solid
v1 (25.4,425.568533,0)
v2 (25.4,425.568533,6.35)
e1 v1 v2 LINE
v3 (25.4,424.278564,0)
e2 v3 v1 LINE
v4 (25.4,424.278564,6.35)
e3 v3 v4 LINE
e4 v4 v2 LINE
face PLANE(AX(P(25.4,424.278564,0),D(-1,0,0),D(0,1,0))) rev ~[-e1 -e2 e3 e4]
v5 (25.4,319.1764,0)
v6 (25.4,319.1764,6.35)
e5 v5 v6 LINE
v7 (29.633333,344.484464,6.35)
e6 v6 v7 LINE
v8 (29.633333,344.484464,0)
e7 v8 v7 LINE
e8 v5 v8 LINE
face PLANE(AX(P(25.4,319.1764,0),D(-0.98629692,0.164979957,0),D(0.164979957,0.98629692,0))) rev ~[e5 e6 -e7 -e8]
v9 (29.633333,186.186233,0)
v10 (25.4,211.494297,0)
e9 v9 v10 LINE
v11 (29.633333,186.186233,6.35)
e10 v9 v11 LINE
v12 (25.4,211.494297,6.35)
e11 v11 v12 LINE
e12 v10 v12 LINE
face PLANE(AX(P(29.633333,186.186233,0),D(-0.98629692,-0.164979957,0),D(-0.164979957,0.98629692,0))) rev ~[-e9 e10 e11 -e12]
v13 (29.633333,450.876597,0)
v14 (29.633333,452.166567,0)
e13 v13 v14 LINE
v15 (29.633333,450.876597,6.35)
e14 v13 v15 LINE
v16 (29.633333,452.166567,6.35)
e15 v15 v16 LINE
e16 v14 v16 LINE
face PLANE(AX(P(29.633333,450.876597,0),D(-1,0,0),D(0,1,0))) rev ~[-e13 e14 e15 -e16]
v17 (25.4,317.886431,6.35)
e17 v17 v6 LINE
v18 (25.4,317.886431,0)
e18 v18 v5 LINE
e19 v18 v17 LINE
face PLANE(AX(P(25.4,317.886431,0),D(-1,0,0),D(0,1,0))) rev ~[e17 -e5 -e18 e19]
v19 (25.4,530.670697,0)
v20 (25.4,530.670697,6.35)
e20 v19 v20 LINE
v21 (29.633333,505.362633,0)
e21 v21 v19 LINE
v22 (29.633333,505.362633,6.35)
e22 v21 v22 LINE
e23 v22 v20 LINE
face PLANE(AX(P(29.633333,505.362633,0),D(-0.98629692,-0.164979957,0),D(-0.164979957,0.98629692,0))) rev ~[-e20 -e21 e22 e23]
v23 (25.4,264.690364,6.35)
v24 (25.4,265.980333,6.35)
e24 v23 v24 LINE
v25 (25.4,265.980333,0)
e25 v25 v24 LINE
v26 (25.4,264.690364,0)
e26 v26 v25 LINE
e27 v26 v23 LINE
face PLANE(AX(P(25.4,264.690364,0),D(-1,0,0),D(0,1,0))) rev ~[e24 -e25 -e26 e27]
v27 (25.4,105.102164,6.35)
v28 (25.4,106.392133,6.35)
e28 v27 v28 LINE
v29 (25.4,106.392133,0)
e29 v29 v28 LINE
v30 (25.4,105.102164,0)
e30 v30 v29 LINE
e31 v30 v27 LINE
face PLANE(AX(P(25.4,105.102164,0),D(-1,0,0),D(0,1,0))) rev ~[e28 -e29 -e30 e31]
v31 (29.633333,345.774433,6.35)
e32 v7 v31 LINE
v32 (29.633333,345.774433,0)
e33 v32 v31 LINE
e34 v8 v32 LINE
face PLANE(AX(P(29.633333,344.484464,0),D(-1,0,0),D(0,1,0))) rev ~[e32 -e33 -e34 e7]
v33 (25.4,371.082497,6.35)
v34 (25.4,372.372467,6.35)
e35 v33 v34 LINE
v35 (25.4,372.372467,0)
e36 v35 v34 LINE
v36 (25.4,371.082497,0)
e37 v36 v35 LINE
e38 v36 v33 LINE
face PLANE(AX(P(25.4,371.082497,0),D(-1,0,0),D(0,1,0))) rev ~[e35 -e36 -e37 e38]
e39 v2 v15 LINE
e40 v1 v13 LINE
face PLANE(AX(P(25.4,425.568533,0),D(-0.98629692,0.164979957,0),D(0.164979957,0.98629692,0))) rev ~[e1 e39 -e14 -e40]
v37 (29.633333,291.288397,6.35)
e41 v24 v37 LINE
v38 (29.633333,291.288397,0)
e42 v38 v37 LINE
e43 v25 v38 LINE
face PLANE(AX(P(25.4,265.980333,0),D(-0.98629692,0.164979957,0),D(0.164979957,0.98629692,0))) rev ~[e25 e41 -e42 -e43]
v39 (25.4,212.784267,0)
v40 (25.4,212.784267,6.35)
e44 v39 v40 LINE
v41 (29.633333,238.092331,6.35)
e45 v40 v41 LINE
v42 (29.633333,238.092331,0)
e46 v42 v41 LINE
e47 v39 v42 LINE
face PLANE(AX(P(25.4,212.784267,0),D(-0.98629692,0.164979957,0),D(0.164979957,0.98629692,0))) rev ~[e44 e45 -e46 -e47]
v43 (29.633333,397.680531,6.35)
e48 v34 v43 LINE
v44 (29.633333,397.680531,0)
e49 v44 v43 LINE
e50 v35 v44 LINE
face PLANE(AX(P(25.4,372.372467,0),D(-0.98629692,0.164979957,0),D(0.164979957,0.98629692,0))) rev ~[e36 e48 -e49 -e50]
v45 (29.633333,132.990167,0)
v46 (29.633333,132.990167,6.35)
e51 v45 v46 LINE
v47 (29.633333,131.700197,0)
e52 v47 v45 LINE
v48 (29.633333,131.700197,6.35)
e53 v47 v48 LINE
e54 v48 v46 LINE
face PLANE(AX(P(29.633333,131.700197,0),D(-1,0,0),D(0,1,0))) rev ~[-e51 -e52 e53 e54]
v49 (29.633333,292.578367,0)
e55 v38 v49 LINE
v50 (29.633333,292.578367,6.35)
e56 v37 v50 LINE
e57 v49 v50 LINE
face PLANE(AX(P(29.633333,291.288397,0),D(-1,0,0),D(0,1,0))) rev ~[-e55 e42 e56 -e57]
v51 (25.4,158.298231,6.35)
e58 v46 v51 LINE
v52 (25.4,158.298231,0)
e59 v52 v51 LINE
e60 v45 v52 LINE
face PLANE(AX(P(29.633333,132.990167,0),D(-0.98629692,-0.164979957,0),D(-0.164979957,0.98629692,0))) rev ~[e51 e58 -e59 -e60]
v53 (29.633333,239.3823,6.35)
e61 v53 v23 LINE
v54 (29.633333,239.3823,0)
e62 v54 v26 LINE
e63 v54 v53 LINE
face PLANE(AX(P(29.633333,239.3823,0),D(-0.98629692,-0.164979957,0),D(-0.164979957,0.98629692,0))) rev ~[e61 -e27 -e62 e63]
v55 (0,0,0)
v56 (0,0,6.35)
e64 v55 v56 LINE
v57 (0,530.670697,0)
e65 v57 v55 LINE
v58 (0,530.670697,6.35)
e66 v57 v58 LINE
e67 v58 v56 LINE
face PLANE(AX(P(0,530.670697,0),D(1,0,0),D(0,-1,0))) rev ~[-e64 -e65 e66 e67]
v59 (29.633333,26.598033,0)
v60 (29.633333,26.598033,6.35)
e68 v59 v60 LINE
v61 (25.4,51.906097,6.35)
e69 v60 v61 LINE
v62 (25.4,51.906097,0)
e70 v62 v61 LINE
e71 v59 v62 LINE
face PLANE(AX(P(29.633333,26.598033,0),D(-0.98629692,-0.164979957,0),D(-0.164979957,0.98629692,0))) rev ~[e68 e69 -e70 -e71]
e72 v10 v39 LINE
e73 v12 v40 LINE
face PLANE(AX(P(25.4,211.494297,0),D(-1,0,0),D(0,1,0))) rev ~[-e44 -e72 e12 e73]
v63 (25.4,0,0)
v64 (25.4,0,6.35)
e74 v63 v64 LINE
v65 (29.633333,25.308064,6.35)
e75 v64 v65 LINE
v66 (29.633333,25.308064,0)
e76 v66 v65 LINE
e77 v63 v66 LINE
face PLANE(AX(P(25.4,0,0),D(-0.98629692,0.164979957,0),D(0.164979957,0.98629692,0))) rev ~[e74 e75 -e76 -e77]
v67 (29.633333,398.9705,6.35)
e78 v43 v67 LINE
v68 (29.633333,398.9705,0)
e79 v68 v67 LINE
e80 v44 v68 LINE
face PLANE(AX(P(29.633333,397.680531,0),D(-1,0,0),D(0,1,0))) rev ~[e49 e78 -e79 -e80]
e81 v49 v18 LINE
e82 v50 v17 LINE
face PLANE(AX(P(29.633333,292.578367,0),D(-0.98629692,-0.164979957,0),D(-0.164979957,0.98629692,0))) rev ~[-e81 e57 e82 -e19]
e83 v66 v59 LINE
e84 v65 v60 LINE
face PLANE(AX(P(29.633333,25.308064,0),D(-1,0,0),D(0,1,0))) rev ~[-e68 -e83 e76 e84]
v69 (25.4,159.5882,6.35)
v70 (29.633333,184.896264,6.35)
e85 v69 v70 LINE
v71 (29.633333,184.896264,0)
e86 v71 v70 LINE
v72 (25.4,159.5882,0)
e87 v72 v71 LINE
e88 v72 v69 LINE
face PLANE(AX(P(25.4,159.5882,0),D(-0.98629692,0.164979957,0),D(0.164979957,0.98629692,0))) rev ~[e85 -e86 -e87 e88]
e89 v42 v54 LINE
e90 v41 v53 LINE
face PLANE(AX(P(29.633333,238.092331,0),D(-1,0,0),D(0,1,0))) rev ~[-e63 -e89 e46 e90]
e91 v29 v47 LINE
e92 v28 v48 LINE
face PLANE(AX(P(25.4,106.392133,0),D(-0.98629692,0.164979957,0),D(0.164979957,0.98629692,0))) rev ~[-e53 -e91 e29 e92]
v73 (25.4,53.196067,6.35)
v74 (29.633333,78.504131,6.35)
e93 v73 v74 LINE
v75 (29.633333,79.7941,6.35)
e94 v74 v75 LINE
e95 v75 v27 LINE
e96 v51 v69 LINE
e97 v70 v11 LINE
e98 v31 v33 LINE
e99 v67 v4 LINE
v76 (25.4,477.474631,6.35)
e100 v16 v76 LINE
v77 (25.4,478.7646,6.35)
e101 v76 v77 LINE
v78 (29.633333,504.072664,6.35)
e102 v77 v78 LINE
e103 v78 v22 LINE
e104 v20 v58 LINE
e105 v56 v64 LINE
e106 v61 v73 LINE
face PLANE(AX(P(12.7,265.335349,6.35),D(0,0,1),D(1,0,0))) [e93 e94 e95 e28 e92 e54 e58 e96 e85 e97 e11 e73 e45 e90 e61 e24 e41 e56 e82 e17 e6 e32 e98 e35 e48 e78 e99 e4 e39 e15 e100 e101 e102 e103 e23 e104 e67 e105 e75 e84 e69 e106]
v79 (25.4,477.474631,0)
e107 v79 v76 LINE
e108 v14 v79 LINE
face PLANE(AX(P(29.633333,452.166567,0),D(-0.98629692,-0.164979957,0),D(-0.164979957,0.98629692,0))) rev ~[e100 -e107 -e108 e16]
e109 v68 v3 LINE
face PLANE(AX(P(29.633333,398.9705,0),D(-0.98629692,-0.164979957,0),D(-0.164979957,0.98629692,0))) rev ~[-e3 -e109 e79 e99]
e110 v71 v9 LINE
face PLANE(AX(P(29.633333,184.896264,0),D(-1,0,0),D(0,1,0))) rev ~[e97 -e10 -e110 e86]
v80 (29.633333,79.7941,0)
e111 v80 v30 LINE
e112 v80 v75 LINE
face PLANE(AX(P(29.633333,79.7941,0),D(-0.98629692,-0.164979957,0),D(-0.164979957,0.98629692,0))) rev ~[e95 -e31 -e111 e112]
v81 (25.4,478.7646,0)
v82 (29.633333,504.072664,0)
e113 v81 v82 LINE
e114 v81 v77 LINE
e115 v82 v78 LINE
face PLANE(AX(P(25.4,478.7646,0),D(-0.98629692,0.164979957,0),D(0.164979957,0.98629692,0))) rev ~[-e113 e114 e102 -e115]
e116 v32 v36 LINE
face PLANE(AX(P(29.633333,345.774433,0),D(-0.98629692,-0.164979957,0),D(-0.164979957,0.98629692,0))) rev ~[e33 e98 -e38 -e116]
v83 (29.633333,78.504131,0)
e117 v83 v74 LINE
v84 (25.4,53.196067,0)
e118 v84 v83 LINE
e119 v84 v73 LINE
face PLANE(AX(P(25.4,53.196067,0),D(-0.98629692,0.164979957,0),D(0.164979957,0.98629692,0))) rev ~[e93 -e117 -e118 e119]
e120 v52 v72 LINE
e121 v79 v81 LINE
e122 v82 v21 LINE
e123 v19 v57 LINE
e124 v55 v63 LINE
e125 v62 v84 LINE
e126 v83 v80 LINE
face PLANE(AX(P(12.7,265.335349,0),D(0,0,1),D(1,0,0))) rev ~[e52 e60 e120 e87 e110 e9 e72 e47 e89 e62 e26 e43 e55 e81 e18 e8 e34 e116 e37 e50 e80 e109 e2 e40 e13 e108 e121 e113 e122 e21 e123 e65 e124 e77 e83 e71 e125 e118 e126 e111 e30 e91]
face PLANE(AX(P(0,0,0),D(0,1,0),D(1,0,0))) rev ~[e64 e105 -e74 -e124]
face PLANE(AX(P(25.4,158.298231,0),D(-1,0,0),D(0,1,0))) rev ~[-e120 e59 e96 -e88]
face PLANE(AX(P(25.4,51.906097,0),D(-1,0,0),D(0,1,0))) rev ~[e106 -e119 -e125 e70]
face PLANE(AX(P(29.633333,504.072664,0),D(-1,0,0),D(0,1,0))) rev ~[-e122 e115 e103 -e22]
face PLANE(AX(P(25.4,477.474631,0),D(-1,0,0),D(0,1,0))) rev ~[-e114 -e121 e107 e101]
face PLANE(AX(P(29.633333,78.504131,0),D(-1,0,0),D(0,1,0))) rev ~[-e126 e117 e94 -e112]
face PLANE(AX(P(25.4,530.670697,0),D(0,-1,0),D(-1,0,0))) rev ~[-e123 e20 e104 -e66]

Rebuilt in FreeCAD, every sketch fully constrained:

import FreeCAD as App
import Part
import Sketcher
Q = App.Units.Quantity


def add_polygon(sketch, points):
    """Adds a closed chain of lines whose ends are joined by coincident constraints."""
    first, n = sketch.GeometryCount, len(points)
    for a, b in zip(points, points[1:] + points[:1]):
        sketch.addGeometry(Part.LineSegment(App.Vector(*a, 0), App.Vector(*b, 0)), False)
    for i in range(n):
        sketch.addConstraint(Sketcher.Constraint("Coincident", first + i, 2, first + (i + 1) % n, 1))

doc = App.newDocument("Part")
body = doc.addObject("PartDesign::Body", "Body")

sketch1 = doc.addObject("Sketcher::SketchObject", "Sketch")
body.addObject(sketch1)
sketch1.AttachmentSupport = (doc.XY_Plane, [""])
sketch1.MapMode = "FlatFace"
add_polygon(sketch1, [(25.4, 530.7), (0, 530.7), (0, 0), (25.4, 0), (29.6, 25.3), (29.6, 26.6), (25.4, 51.9), (25.4, 53.2), (29.6, 78.5), (29.6, 79.8), (25.4, 105.1), (25.4, 106.4), (29.6, 131.7), (29.6, 133), (25.4, 158.3), (25.4, 159.6), (29.6, 184.9), (29.6, 186.2), (25.4, 211.5), (25.4, 212.8), (29.6, 238.1), (29.6, 239.4), (25.4, 264.7), (25.4, 266), (29.6, 291.3), (29.6, 292.6), (25.4, 317.9), (25.4, 319.2), (29.6, 344.5), (29.6, 345.8), (25.4, 371.1), (25.4, 372.4), (29.6, 397.7), (29.6, 399), (25.4, 424.3), (25.4, 425.6), (29.6, 450.9), (29.6, 452.2), (25.4, 477.5), (25.4, 478.8), (29.6, 504.1), (29.6, 505.4)])
sketch1.addConstraint(Sketcher.Constraint("Horizontal", 0))
sketch1.addConstraint(Sketcher.Constraint("Vertical", 1))
sketch1.addConstraint(Sketcher.Constraint("Horizontal", 2))
sketch1.addConstraint(Sketcher.Constraint("Vertical", 4))
sketch1.addConstraint(Sketcher.Constraint("Vertical", 6))
sketch1.addConstraint(Sketcher.Constraint("Vertical", 8))
sketch1.addConstraint(Sketcher.Constraint("Vertical", 10))
sketch1.addConstraint(Sketcher.Constraint("Vertical", 12))
sketch1.addConstraint(Sketcher.Constraint("Vertical", 14))
sketch1.addConstraint(Sketcher.Constraint("Vertical", 16))
sketch1.addConstraint(Sketcher.Constraint("Vertical", 18))
sketch1.addConstraint(Sketcher.Constraint("Vertical", 20))
sketch1.addConstraint(Sketcher.Constraint("Vertical", 22))
sketch1.addConstraint(Sketcher.Constraint("Vertical", 24))
sketch1.addConstraint(Sketcher.Constraint("Vertical", 26))
sketch1.addConstraint(Sketcher.Constraint("Vertical", 28))
sketch1.addConstraint(Sketcher.Constraint("Vertical", 30))
sketch1.addConstraint(Sketcher.Constraint("Vertical", 32))
sketch1.addConstraint(Sketcher.Constraint("Vertical", 34))
sketch1.addConstraint(Sketcher.Constraint("Vertical", 36))
sketch1.addConstraint(Sketcher.Constraint("Vertical", 38))
sketch1.addConstraint(Sketcher.Constraint("Vertical", 40))
sketch1.addConstraint(Sketcher.Constraint("Coincident", 1, 2, -1, 1))
sketch1.addConstraint(Sketcher.Constraint("Parallel", 3, 7))
sketch1.addConstraint(Sketcher.Constraint("Parallel", 5, 9))
sketch1.addConstraint(Sketcher.Constraint("Parallel", 7, 11))
sketch1.addConstraint(Sketcher.Constraint("Parallel", 9, 13))
sketch1.addConstraint(Sketcher.Constraint("Parallel", 11, 15))
sketch1.addConstraint(Sketcher.Constraint("Parallel", 13, 17))
sketch1.addConstraint(Sketcher.Constraint("Parallel", 15, 19))
sketch1.addConstraint(Sketcher.Constraint("Parallel", 17, 21))
sketch1.addConstraint(Sketcher.Constraint("Parallel", 19, 23))
sketch1.addConstraint(Sketcher.Constraint("Parallel", 21, 25))
sketch1.addConstraint(Sketcher.Constraint("Parallel", 23, 27))
sketch1.addConstraint(Sketcher.Constraint("Parallel", 25, 29))
sketch1.addConstraint(Sketcher.Constraint("Parallel", 27, 31))
sketch1.addConstraint(Sketcher.Constraint("Parallel", 29, 33))
sketch1.addConstraint(Sketcher.Constraint("Parallel", 31, 35))
sketch1.addConstraint(Sketcher.Constraint("Parallel", 33, 37))
sketch1.addConstraint(Sketcher.Constraint("Parallel", 35, 39))
sketch1.addConstraint(Sketcher.Constraint("Parallel", 37, 41))
sketch1.addConstraint(Sketcher.Constraint("Vertical", 2, 2, 5, 2))
sketch1.addConstraint(Sketcher.Constraint("Vertical", 4, 2, 7, 2))
sketch1.addConstraint(Sketcher.Constraint("Vertical", 6, 2, 9, 2))
sketch1.addConstraint(Sketcher.Constraint("Vertical", 8, 2, 11, 2))
sketch1.addConstraint(Sketcher.Constraint("Vertical", 10, 2, 13, 2))
sketch1.addConstraint(Sketcher.Constraint("Vertical", 12, 2, 15, 2))
sketch1.addConstraint(Sketcher.Constraint("Vertical", 14, 2, 17, 2))
sketch1.addConstraint(Sketcher.Constraint("Vertical", 16, 2, 19, 2))
sketch1.addConstraint(Sketcher.Constraint("Vertical", 18, 2, 21, 2))
sketch1.addConstraint(Sketcher.Constraint("Vertical", 20, 2, 23, 2))
sketch1.addConstraint(Sketcher.Constraint("Vertical", 22, 2, 25, 2))
sketch1.addConstraint(Sketcher.Constraint("Vertical", 24, 2, 27, 2))
sketch1.addConstraint(Sketcher.Constraint("Vertical", 26, 2, 29, 2))
sketch1.addConstraint(Sketcher.Constraint("Vertical", 28, 2, 31, 2))
sketch1.addConstraint(Sketcher.Constraint("Vertical", 30, 2, 33, 2))
sketch1.addConstraint(Sketcher.Constraint("Vertical", 32, 2, 35, 2))
sketch1.addConstraint(Sketcher.Constraint("Vertical", 34, 2, 37, 2))
sketch1.addConstraint(Sketcher.Constraint("Vertical", 36, 2, 39, 2))
sketch1.addConstraint(Sketcher.Constraint("Vertical", 38, 2, 41, 2))
sketch1.addConstraint(Sketcher.Constraint("Equal", 4, 6))
sketch1.addConstraint(Sketcher.Constraint("Equal", 6, 8))
sketch1.addConstraint(Sketcher.Constraint("Equal", 8, 10))
sketch1.addConstraint(Sketcher.Constraint("Equal", 10, 12))
sketch1.addConstraint(Sketcher.Constraint("Equal", 12, 14))
sketch1.addConstraint(Sketcher.Constraint("Equal", 14, 16))
sketch1.addConstraint(Sketcher.Constraint("Equal", 16, 18))
sketch1.addConstraint(Sketcher.Constraint("Equal", 18, 20))
sketch1.addConstraint(Sketcher.Constraint("Equal", 20, 22))
sketch1.addConstraint(Sketcher.Constraint("Equal", 22, 24))
sketch1.addConstraint(Sketcher.Constraint("Equal", 24, 26))
sketch1.addConstraint(Sketcher.Constraint("Equal", 26, 28))
sketch1.addConstraint(Sketcher.Constraint("Equal", 28, 30))
sketch1.addConstraint(Sketcher.Constraint("Equal", 30, 32))
sketch1.addConstraint(Sketcher.Constraint("Equal", 32, 34))
sketch1.addConstraint(Sketcher.Constraint("Equal", 34, 36))
sketch1.addConstraint(Sketcher.Constraint("Equal", 36, 38))
sketch1.addConstraint(Sketcher.Constraint("Equal", 38, 40))
sketch1.addConstraint(Sketcher.Constraint("Equal", 3, 5))
sketch1.addConstraint(Sketcher.Constraint("DistanceX", 0, 2, 0, 1, Q("1 in")))
sketch1.addConstraint(Sketcher.Constraint("DistanceY", -1, 1, 14, 2, Q("6.283 in")))
sketch1.addConstraint(Sketcher.Constraint("DistanceY", 4, 1, 4, 2, 1.289969))
sketch1.addConstraint(Sketcher.Constraint("Distance", 3, 25.659681))
pad1 = doc.addObject("PartDesign::Pad", "Pad")
body.addObject(pad1)
pad1.Profile = sketch1
pad1.Length = Q("0.25 in")

doc.recompute()
